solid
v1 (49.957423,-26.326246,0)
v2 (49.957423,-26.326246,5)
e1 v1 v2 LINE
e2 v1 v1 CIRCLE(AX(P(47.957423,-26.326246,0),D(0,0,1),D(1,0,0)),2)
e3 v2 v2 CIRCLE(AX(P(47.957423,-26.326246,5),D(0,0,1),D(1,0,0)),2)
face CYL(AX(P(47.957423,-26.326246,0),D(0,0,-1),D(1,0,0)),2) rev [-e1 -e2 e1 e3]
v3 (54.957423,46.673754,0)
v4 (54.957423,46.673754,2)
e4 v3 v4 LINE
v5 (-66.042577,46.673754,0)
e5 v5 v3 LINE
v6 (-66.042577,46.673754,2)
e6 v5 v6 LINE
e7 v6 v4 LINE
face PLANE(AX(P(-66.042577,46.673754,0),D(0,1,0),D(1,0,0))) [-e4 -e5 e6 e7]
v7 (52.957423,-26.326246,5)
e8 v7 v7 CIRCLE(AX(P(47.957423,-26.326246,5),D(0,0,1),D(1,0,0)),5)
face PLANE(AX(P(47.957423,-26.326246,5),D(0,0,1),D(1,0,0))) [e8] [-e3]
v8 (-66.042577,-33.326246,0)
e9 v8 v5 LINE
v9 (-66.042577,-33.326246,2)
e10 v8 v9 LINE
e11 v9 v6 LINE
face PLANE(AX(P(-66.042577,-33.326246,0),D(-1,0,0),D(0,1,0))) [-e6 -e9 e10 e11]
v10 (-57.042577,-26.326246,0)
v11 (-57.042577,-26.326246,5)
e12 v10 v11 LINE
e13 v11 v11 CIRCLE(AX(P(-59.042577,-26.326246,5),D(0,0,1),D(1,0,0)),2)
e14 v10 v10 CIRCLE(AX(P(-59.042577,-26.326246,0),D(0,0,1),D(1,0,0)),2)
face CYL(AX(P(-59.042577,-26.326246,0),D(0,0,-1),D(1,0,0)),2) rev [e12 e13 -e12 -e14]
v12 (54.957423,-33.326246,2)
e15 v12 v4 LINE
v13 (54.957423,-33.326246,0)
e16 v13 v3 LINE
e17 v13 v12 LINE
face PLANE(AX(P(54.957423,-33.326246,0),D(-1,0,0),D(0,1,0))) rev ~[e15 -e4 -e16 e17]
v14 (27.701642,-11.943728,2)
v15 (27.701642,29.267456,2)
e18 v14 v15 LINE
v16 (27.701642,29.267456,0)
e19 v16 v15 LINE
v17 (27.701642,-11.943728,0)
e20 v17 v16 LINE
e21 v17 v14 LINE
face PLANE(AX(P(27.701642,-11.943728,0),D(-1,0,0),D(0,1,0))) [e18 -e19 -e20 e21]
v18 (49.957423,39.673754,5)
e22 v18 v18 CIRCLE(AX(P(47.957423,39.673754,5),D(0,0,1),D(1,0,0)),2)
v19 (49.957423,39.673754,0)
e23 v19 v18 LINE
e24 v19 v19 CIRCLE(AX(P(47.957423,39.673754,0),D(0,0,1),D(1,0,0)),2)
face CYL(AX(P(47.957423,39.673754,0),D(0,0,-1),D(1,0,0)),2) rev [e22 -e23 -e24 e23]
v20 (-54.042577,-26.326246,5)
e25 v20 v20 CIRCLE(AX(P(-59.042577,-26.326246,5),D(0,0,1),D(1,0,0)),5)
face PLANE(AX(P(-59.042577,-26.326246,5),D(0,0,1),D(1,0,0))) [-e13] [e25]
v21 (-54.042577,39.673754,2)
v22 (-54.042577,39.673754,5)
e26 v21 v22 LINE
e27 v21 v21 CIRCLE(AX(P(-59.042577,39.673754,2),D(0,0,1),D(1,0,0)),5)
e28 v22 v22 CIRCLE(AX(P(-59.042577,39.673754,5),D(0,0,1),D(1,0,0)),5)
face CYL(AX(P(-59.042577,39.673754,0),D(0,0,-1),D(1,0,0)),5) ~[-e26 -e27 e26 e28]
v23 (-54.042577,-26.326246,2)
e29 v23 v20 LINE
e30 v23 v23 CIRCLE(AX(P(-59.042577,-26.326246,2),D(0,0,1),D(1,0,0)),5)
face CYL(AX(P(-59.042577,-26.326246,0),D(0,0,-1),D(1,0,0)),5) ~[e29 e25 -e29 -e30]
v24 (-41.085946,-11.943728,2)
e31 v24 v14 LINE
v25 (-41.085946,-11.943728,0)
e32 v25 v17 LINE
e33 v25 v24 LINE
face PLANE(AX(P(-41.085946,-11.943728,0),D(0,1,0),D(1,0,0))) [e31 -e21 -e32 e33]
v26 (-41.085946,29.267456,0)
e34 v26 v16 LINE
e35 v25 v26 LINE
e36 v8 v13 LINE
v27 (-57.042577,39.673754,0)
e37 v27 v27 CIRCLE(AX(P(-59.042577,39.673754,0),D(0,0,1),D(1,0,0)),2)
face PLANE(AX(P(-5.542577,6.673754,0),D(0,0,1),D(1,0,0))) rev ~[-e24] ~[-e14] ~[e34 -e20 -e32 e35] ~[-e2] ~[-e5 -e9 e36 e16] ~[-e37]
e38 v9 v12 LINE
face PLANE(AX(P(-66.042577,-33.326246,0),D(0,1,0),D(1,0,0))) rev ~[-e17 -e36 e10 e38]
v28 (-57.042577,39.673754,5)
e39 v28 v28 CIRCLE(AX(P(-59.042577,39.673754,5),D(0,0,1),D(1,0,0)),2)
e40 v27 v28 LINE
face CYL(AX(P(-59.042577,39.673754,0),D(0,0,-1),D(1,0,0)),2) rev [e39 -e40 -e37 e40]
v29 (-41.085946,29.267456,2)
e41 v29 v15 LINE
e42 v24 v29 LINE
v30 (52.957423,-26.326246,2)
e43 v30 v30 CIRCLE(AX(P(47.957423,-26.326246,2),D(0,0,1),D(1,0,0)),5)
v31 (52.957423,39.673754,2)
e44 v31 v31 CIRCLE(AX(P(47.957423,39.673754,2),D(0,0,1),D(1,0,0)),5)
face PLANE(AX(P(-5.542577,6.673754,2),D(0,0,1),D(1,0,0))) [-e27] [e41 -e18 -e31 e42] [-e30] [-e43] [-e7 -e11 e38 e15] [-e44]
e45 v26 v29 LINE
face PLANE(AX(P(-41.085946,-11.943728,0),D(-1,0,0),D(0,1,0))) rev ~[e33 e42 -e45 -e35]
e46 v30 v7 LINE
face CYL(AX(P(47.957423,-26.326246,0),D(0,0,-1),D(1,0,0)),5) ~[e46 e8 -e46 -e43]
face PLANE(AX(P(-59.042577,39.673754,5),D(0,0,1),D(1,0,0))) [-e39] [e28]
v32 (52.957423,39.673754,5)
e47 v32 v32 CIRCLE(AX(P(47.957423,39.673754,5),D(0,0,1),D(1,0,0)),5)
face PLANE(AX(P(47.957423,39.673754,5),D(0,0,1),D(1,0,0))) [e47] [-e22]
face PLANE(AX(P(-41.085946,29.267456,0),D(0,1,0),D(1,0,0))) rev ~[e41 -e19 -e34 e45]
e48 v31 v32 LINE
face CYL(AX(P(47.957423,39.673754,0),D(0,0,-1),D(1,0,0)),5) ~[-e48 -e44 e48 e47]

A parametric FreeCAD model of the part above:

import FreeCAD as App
import Part
import Sketcher
from FreeCAD import Vector
Q = App.Units.Quantity

doc = App.newDocument("Part")
body = doc.addObject("PartDesign::Body", "Body")

# Sketch on XY plane
sketch1 = body.newObject("Sketcher::SketchObject", "Sketch")
sketch1.AttachmentSupport = (doc.getObject("XY_Plane"), [""])
sketch1.MapMode = "FlatFace"
sketch1.addGeometry([
    Part.LineSegment(Vector(-66, 47, 0), Vector(-66, -33, 0)),  # 0
    Part.LineSegment(Vector(-66, -33, 0), Vector(55, -33, 0)),  # 1
    Part.LineSegment(Vector(55, -33, 0), Vector(55, 47, 0)),  # 2
    Part.LineSegment(Vector(55, 47, 0), Vector(-66, 47, 0)),  # 3
    Part.Circle(Vector(-59, -26, 0), Vector(0, 0, 1), 5),  # 4
    Part.Circle(Vector(48, -26, 0), Vector(0, 0, 1), 5),  # 5
    Part.LineSegment(Vector(28, -12, 0), Vector(-41, -12, 0)),  # 6
    Part.LineSegment(Vector(-41, -12, 0), Vector(-41, 29, 0)),  # 7
    Part.LineSegment(Vector(-41, 29, 0), Vector(28, 29, 0)),  # 8
    Part.LineSegment(Vector(28, 29, 0), Vector(28, -12, 0)),  # 9
    Part.Circle(Vector(-59, 40, 0), Vector(0, 0, 1), 5),  # 10
    Part.Circle(Vector(48, 40, 0), Vector(0, 0, 1), 5),  # 11
], False)
sketch1.addConstraint([
    Sketcher.Constraint("Coincident", 0, 2, 1, 1),
    Sketcher.Constraint("Coincident", 1, 2, 2, 1),
    Sketcher.Constraint("Coincident", 2, 2, 3, 1),
    Sketcher.Constraint("Coincident", 3, 2, 0, 1),
    Sketcher.Constraint("Coincident", 6, 2, 7, 1),
    Sketcher.Constraint("Coincident", 7, 2, 8, 1),
    Sketcher.Constraint("Coincident", 8, 2, 9, 1),
    Sketcher.Constraint("Coincident", 9, 2, 6, 1),
    Sketcher.Constraint("Vertical", 0),
    Sketcher.Constraint("Horizontal", 1),
    Sketcher.Constraint("Vertical", 2),
    Sketcher.Constraint("Horizontal", 3),
    Sketcher.Constraint("Horizontal", 6),
    Sketcher.Constraint("Vertical", 7),
    Sketcher.Constraint("Horizontal", 8),
    Sketcher.Constraint("Vertical", 9),
    Sketcher.Constraint("Equal", 4, 5),
    Sketcher.Constraint("Equal", 5, 10),
    Sketcher.Constraint("Equal", 10, 11),
    Sketcher.Constraint("Horizontal", 4, 3, 5, 3),
    Sketcher.Constraint("Horizontal", 10, 3, 11, 3),
    Sketcher.Constraint("Vertical", 4, 3, 10, 3),
    Sketcher.Constraint("Vertical", 5, 3, 11, 3),
    Sketcher.Constraint("Diameter", 4, Q("10 mm")),
    Sketcher.Constraint("DistanceX", 1, 1, 1, 2, Q("121 mm")),
    Sketcher.Constraint("DistanceY", 0, 2, 0, 1, Q("80 mm")),
    Sketcher.Constraint("DistanceX", 4, 3, 5, 3, Q("107 mm")),
    Sketcher.Constraint("DistanceY", 4, 3, 10, 3, Q("66 mm")),
    Sketcher.Constraint("DistanceX", 0, 2, 4, 3, Q("7 mm")),
    Sketcher.Constraint("DistanceY", 0, 2, 4, 3, Q("7 mm")),
    Sketcher.Constraint("DistanceX", 6, 2, 6, 1, Q("68.787589 mm")),
    Sketcher.Constraint("DistanceY", 7, 2, 10, 3, Q("10.406298 mm")),
    Sketcher.Constraint("DistanceY", 7, 1, 7, 2, Q("41.211184 mm")),
    Sketcher.Constraint("DistanceX", 4, 3, 6, 2, Q("17.956631 mm")),
    Sketcher.Constraint("DistanceX", 4, 3, -1, 1, Q("59.042577 mm")),
    Sketcher.Constraint("DistanceY", 4, 3, -1, 1, Q("26.326246 mm")),
])
pad1 = body.newObject("PartDesign::Pad", "Pad")
pad1.Profile = sketch1
pad1.Length = 2

# Sketch on XY plane
sketch2 = body.newObject("Sketcher::SketchObject", "Sketch001")
sketch2.AttachmentSupport = (doc.getObject("XY_Plane"), [""])
sketch2.MapMode = "FlatFace"
sketch2.addGeometry([
    Part.Circle(Vector(-59, 39.7, 0), Vector(0, 0, 1), 5),  # 0
    Part.Circle(Vector(-59, 39.7, 0), Vector(0, 0, 1), 2),  # 1
    Part.Circle(Vector(48, 39.7, 0), Vector(0, 0, 1), 5),  # 2
    Part.Circle(Vector(48, 39.7, 0), Vector(0, 0, 1), 2),  # 3
    Part.Circle(Vector(48, -26.3, 0), Vector(0, 0, 1), 5),  # 4
    Part.Circle(Vector(48, -26.3, 0), Vector(0, 0, 1), 2),  # 5
    Part.Circle(Vector(-59, -26.3, 0), Vector(0, 0, 1), 5),  # 6
    Part.Circle(Vector(-59, -26.3, 0), Vector(0, 0, 1), 2),  # 7
], False)
sketch2.addConstraint([
    Sketcher.Constraint("Coincident", 1, 3, 0, 3),
    Sketcher.Constraint("Coincident", 3, 3, 2, 3),
    Sketcher.Constraint("Coincident", 5, 3, 4, 3),
    Sketcher.Constraint("Coincident", 7, 3, 6, 3),
    Sketcher.Constraint("Equal", 0, 2),
    Sketcher.Constraint("Equal", 1, 3),
    Sketcher.Constraint("Equal", 2, 4),
    Sketcher.Constraint("Equal", 3, 5),
    Sketcher.Constraint("Equal", 4, 6),
    Sketcher.Constraint("Equal", 5, 7),
    Sketcher.Constraint("Horizontal", 1, 3, 2, 3),
    Sketcher.Constraint("Horizontal", 5, 3, 6, 3),
    Sketcher.Constraint("Vertical", 3, 3, 4, 3),
    Sketcher.Constraint("Vertical", 1, 3, 6, 3),
    Sketcher.Constraint("Diameter", 0, Q("10 mm")),
    Sketcher.Constraint("Diameter", 1, Q("4 mm")),
    Sketcher.Constraint("DistanceX", 0, 3, 2, 3, Q("107 mm")),
    Sketcher.Constraint("DistanceY", 4, 3, 2, 3, Q("66 mm")),
    Sketcher.Constraint("DistanceX", 0, 3, -1, 1, Q("59.042577 mm")),
    Sketcher.Constraint("DistanceY", -1, 1, 0, 3, Q("39.673754 mm")),
])
pad2 = body.newObject("PartDesign::Pad", "Pad001")
pad2.Profile = sketch2
pad2.Length = 5

doc.recompute()
